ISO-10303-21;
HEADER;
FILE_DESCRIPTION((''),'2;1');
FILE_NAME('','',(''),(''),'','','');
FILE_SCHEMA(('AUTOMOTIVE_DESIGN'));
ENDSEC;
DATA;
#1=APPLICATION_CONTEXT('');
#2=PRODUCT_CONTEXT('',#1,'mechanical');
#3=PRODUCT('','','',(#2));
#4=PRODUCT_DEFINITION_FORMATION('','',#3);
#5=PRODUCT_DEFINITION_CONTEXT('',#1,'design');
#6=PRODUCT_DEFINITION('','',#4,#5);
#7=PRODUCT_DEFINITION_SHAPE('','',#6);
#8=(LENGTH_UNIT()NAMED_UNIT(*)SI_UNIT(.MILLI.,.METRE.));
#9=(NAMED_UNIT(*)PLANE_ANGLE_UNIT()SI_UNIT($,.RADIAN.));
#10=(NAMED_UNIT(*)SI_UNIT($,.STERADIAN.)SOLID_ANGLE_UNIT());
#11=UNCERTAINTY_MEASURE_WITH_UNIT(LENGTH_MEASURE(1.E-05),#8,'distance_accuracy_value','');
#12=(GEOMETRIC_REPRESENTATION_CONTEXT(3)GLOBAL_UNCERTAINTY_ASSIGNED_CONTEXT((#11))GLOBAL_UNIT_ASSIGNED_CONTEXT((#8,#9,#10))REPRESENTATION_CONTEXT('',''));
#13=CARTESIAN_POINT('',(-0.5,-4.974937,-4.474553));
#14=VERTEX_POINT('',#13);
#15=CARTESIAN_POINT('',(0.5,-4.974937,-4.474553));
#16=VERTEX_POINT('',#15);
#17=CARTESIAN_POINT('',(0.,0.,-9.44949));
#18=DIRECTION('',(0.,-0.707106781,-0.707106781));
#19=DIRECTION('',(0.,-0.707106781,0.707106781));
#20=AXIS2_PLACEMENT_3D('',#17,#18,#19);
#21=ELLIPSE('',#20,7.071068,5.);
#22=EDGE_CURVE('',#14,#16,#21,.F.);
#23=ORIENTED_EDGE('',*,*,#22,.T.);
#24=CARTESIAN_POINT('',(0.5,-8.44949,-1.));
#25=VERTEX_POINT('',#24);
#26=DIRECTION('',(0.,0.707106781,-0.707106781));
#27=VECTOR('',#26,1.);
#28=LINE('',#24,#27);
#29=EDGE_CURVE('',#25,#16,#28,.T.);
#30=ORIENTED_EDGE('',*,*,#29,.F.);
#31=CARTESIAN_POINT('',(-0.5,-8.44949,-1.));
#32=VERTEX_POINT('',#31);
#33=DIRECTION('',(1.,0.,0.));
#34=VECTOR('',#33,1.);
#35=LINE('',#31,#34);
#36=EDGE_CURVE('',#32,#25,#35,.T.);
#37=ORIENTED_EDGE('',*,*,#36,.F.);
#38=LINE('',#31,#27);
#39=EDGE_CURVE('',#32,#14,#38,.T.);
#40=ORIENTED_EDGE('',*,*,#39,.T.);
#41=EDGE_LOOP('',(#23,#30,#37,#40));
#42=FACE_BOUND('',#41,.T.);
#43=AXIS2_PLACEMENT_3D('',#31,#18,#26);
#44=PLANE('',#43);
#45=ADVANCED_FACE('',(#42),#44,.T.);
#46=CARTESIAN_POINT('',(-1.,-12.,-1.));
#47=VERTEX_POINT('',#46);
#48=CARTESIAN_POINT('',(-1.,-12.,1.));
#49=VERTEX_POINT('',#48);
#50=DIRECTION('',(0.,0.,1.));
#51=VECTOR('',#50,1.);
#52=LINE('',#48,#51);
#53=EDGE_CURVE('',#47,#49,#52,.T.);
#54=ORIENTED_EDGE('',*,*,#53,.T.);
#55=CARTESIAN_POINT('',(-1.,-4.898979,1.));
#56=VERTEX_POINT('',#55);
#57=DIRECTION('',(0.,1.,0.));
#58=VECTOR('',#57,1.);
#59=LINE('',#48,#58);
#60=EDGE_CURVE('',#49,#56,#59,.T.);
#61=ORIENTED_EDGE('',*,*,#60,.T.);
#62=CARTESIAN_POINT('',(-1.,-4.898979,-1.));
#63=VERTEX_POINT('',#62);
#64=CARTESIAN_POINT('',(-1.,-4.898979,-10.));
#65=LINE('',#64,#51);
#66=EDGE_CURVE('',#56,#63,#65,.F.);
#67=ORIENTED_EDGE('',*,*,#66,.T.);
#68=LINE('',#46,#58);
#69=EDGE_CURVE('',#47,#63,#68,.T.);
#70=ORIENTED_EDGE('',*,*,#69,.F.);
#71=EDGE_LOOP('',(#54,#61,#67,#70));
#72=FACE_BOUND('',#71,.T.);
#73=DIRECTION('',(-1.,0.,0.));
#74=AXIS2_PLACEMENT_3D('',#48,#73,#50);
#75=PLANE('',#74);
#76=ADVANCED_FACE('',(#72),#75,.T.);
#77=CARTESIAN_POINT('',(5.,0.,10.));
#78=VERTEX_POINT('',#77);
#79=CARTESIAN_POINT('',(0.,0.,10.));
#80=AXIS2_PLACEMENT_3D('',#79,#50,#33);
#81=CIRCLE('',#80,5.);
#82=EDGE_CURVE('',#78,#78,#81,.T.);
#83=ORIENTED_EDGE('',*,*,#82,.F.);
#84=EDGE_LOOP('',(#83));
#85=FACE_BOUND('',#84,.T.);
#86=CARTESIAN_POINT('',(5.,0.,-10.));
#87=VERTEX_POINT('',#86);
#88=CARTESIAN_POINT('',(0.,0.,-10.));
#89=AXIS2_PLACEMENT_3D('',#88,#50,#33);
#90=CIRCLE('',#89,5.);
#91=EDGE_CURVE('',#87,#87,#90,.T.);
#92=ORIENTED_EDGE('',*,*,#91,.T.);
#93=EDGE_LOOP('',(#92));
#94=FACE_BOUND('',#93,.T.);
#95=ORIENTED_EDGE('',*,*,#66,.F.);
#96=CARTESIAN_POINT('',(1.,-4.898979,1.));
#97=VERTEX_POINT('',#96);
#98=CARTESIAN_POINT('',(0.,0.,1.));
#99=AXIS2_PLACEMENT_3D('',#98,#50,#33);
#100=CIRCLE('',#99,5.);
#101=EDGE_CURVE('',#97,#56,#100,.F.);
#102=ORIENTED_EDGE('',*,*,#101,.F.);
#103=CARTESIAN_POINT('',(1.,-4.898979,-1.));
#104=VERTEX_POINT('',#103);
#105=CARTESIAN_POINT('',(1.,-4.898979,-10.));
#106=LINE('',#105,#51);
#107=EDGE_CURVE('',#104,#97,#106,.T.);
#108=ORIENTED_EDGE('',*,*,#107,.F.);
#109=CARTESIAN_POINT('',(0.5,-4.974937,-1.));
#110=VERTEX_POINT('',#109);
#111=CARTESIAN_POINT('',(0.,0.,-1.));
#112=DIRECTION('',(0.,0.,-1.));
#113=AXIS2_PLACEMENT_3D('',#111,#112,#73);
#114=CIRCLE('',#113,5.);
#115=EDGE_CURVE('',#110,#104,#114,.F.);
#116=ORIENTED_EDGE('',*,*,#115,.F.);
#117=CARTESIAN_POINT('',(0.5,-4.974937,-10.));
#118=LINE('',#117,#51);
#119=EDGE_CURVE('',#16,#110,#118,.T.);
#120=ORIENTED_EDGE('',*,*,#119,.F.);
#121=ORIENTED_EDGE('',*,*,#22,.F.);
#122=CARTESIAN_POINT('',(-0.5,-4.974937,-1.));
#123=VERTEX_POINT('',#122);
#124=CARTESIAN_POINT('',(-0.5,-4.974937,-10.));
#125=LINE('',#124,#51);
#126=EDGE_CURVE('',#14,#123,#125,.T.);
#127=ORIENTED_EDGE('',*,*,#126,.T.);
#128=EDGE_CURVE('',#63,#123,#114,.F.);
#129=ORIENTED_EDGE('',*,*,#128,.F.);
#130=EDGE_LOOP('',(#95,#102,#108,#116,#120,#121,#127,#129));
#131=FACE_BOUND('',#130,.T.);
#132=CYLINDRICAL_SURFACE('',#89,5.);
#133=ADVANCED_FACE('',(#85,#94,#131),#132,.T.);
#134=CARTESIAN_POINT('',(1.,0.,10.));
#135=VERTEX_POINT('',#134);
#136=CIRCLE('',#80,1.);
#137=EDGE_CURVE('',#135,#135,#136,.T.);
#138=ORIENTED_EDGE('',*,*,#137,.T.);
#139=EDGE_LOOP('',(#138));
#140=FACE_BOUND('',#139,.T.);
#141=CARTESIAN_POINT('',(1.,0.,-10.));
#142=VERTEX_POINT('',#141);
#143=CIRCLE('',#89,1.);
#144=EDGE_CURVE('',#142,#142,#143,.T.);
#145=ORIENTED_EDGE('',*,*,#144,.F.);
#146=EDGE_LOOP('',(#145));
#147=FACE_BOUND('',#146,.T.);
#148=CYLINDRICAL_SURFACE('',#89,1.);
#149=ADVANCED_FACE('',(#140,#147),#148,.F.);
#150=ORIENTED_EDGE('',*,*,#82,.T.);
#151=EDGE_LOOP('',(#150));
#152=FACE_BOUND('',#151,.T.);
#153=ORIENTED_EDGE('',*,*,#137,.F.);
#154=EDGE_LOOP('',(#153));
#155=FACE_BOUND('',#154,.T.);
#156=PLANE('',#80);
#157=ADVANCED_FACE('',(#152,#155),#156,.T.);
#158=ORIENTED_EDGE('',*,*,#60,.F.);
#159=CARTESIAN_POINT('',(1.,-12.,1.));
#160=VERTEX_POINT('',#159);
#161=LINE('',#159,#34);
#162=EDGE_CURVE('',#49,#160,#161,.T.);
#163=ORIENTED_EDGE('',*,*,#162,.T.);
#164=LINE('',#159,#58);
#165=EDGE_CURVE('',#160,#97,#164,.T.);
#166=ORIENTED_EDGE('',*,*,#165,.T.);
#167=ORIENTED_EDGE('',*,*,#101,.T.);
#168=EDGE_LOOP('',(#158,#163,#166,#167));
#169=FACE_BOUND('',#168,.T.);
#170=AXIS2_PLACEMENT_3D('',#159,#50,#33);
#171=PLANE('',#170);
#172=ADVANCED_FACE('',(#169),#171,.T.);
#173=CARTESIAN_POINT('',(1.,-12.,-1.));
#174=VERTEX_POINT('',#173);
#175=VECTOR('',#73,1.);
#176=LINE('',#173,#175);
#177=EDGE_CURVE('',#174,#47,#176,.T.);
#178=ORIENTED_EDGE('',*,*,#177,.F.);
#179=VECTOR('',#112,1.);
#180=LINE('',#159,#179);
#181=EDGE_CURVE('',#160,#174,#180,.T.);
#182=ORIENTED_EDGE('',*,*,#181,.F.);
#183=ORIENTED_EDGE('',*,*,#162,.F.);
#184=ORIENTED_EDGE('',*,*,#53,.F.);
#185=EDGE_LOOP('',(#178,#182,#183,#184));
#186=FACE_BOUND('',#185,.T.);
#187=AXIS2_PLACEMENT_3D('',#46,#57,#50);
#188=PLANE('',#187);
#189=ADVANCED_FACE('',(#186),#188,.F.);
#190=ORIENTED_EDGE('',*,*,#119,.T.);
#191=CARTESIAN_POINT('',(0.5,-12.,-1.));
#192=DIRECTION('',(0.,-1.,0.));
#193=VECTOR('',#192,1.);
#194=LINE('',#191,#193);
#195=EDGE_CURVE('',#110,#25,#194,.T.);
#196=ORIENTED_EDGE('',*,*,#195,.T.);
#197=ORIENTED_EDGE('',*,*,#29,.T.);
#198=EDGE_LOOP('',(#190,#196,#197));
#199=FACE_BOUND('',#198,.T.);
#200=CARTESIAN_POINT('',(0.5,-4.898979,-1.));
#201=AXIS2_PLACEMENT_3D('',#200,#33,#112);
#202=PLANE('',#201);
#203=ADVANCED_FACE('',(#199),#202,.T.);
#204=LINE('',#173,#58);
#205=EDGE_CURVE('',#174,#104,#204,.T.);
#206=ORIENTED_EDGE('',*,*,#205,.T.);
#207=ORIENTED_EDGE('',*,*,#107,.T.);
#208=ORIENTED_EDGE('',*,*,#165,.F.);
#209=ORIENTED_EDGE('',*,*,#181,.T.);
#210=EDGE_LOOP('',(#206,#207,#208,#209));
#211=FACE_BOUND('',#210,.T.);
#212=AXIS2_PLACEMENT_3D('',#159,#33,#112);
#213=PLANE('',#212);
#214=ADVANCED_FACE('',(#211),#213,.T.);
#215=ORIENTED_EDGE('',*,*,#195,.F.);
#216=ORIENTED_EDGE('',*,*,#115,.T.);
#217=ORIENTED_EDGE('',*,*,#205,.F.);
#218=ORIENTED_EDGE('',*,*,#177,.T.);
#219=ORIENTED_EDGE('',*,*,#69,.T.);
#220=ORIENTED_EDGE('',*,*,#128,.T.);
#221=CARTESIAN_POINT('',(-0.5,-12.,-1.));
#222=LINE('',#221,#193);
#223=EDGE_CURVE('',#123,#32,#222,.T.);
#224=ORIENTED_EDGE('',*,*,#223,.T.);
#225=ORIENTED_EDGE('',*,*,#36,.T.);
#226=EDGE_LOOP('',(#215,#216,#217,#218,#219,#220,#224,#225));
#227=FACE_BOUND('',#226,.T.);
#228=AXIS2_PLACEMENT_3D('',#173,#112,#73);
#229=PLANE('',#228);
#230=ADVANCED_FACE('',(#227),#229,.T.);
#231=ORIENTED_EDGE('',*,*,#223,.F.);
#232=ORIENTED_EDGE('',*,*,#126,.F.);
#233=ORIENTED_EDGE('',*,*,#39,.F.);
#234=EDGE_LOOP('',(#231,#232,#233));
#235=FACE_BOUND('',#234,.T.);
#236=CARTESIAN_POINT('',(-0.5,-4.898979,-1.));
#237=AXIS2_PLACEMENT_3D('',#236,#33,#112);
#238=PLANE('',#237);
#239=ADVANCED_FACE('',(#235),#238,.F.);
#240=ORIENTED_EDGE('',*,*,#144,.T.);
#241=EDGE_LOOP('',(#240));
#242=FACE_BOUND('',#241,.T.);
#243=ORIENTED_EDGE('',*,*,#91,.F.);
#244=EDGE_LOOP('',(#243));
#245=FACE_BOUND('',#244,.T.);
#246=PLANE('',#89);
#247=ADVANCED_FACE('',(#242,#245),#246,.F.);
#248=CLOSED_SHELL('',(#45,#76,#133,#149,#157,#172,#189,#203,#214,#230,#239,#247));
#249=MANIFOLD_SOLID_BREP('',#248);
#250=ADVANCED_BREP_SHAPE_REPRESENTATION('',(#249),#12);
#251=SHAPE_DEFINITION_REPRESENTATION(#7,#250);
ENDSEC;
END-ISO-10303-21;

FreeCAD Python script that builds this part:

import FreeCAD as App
import Part
import Sketcher

V = App.Vector
Q = App.Units.Quantity

doc = App.newDocument("Part")
body = doc.addObject("PartDesign::Body", "Body")

sketch1 = body.newObject("Sketcher::SketchObject", "Sketch")
sketch1.AttachmentSupport = (doc.getObject("XY_Plane"), [""])
sketch1.MapMode = "FlatFace"
sketch1.addGeometry([
    Part.Circle(V(0, 0, 0), V(0, 0, 1), 5),
    Part.Circle(V(0, 0, 0), V(0, 0, 1), 1),
], False)
sketch1.addConstraint([
    Sketcher.Constraint("Coincident", 0, 3, -1, 1),
    Sketcher.Constraint("Coincident", 1, 3, -1, 1),
    Sketcher.Constraint("Diameter", 0, Q("10 mm")),
    Sketcher.Constraint("Diameter", 1, Q("2 mm")),
])
pad1 = body.newObject("PartDesign::Pad", "Pad")
pad1.Profile = sketch1
pad1.Type = "TwoLengths"
pad1.Length = 10
pad1.Length2 = 10

sketch2 = body.newObject("Sketcher::SketchObject", "Sketch001")
sketch2.AttachmentSupport = (doc.getObject("XZ_Plane"), [""])
sketch2.MapMode = "FlatFace"
sketch2.AttachmentOffset = App.Placement(V(0, 0, 2), App.Rotation())
sketch2.addGeometry([
    Part.LineSegment(V(-1, -1, 0), V(-1, 1, 0)),
    Part.LineSegment(V(-1, 1, 0), V(1, 1, 0)),
    Part.LineSegment(V(1, 1, 0), V(1, -1, 0)),
    Part.LineSegment(V(1, -1, 0), V(-1, -1, 0)),
], False)
sketch2.addConstraint([
    Sketcher.Constraint("Coincident", 0, 2, 1, 1),
    Sketcher.Constraint("Coincident", 1, 2, 2, 1),
    Sketcher.Constraint("Coincident", 2, 2, 3, 1),
    Sketcher.Constraint("Coincident", 3, 2, 0, 1),
    Sketcher.Constraint("Vertical", 0),
    Sketcher.Constraint("Horizontal", 1),
    Sketcher.Constraint("Vertical", 2),
    Sketcher.Constraint("Horizontal", 3),
    Sketcher.Constraint("Symmetric", 0, 2, 2, 2, -1, 1),
    Sketcher.Constraint("Equal", 3, 0),
    Sketcher.Constraint("DistanceX", 1, 1, 1, 2, Q("2 mm")),
])
pad2 = body.newObject("PartDesign::Pad", "Pad001")
pad2.Profile = sketch2
pad2.Length = 10

sketch3 = body.newObject("Sketcher::SketchObject", "Sketch002")
sketch3.AttachmentSupport = (doc.getObject("YZ_Plane"), [""])
sketch3.MapMode = "FlatFace"
sketch3.addGeometry([
    Part.LineSegment(V(-8.44949, -1, 0), V(-4.898979, -4.55051, 0)),
    Part.LineSegment(V(-4.898979, -4.55051, 0), V(-4.898979, -1, 0)),
    Part.LineSegment(V(-4.898979, -1, 0), V(-8.44949, -1, 0)),
], False)
sketch3.addConstraint([
    Sketcher.Constraint("Coincident", 0, 2, 1, 1),
    Sketcher.Constraint("Coincident", 1, 2, 2, 1),
    Sketcher.Constraint("Coincident", 2, 2, 0, 1),
    Sketcher.Constraint("Vertical", 1),
    Sketcher.Constraint("Horizontal", 2),
    Sketcher.Constraint("Equal", 2, 1),
    Sketcher.Constraint("DistanceY", 1, 2, -1, 1, Q("1 mm")),
    Sketcher.Constraint("DistanceX", 2, 2, 2, 1, Q("3.55051 mm")),
    Sketcher.Constraint("DistanceX", 0, 2, -1, 1, Q("4.898979 mm")),
])
pad3 = body.newObject("PartDesign::Pad", "Pad002")
pad3.Profile = sketch3
pad3.Type = "TwoLengths"
pad3.Length = 0.5
pad3.Length2 = 0.5

doc.recompute()
